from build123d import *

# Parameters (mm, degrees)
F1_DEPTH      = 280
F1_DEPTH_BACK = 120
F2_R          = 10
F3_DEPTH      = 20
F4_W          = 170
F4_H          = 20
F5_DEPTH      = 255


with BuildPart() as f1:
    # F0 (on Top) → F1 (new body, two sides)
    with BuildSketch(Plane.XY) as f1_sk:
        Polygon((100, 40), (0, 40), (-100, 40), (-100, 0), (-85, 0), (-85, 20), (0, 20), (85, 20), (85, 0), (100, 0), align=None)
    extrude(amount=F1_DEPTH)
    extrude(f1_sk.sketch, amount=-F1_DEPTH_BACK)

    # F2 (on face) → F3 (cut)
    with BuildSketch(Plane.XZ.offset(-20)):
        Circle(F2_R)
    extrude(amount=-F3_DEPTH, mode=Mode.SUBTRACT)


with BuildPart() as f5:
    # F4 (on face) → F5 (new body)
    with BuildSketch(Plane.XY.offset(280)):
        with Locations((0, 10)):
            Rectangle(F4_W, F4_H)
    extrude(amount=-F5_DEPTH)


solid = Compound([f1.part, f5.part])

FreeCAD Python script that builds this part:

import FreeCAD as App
import Part
import Sketcher

doc = App.newDocument("Part")
params = doc.addObject("Spreadsheet::Sheet", "Params")
for row, (alias, value) in enumerate([
    ("sketch1_width", "200 mm"),
    ("sketch1_width2", "15 mm"),
    ("sketch1_height", "40 mm"),
    ("sketch1_height2", "20 mm"),
    ("pad1_length", "280 mm"),
    ("pad1_length2", "120 mm"),
    ("sketch2_diameter", "20 mm"),
    ("pocket1_length", "20 mm"),
    ("sketch3_width", "170 mm"),
    ("sketch3_height", "20 mm"),
    ("pad2_length", "255 mm"),
], start=1):
    params.set(f"A{row}", alias)
    params.set(f"B{row}", "=" + value)
    params.setAlias(f"B{row}", alias)

body = doc.addObject("PartDesign::Body", "Body")

# Sketch on XY plane
sketch1 = body.newObject("Sketcher::SketchObject", "Sketch")
sketch1.AttachmentSupport = (doc.getObject("XY_Plane"), [""])
sketch1.MapMode = "FlatFace"
sketch1.addGeometry(Part.LineSegment(App.Vector(100, 40, 0), App.Vector(-100, 40, 0)), False)
sketch1.addGeometry(Part.LineSegment(App.Vector(-100, 40, 0), App.Vector(-100, 0, 0)), False)
sketch1.addGeometry(Part.LineSegment(App.Vector(-100, 0, 0), App.Vector(-85, 0, 0)), False)
sketch1.addGeometry(Part.LineSegment(App.Vector(-85, 0, 0), App.Vector(-85, 20, 0)), False)
sketch1.addGeometry(Part.LineSegment(App.Vector(-85, 20, 0), App.Vector(85, 20, 0)), False)
sketch1.addGeometry(Part.LineSegment(App.Vector(85, 20, 0), App.Vector(85, 0, 0)), False)
sketch1.addGeometry(Part.LineSegment(App.Vector(85, 0, 0), App.Vector(100, 0, 0)), False)
sketch1.addGeometry(Part.LineSegment(App.Vector(100, 0, 0), App.Vector(100, 40, 0)), False)
sketch1.addConstraint(Sketcher.Constraint("Coincident", 0, 2, 1, 1))
sketch1.addConstraint(Sketcher.Constraint("Coincident", 1, 2, 2, 1))
sketch1.addConstraint(Sketcher.Constraint("Coincident", 2, 2, 3, 1))
sketch1.addConstraint(Sketcher.Constraint("Coincident", 3, 2, 4, 1))
sketch1.addConstraint(Sketcher.Constraint("Coincident", 4, 2, 5, 1))
sketch1.addConstraint(Sketcher.Constraint("Coincident", 5, 2, 6, 1))
sketch1.addConstraint(Sketcher.Constraint("Coincident", 6, 2, 7, 1))
sketch1.addConstraint(Sketcher.Constraint("Coincident", 7, 2, 0, 1))
sketch1.addConstraint(Sketcher.Constraint("Horizontal", 0))
sketch1.addConstraint(Sketcher.Constraint("Vertical", 1))
sketch1.addConstraint(Sketcher.Constraint("Horizontal", 2))
sketch1.addConstraint(Sketcher.Constraint("Vertical", 3))
sketch1.addConstraint(Sketcher.Constraint("Horizontal", 4))
sketch1.addConstraint(Sketcher.Constraint("Vertical", 5))
sketch1.addConstraint(Sketcher.Constraint("Horizontal", 6))
sketch1.addConstraint(Sketcher.Constraint("Vertical", 7))
sketch1.addConstraint(Sketcher.Constraint("Symmetric", 2, 2, 5, 2, -1, 1))
sketch1.addConstraint(Sketcher.Constraint("Symmetric", 1, 2, 6, 2, -2))
sketch1.addConstraint(Sketcher.Constraint("DistanceX", 0, 2, 0, 1, 200.0))
sketch1.addConstraint(Sketcher.Constraint("DistanceX", 2, 1, 2, 2, 15.0))
sketch1.addConstraint(Sketcher.Constraint("DistanceY", 1, 2, 1, 1, 40.0))
sketch1.addConstraint(Sketcher.Constraint("DistanceY", 3, 1, 3, 2, 20.0))
sketch1.setExpression("Constraints[18]", "Params.sketch1_width")
sketch1.setExpression("Constraints[19]", "Params.sketch1_width2")
sketch1.setExpression("Constraints[20]", "Params.sketch1_height")
sketch1.setExpression("Constraints[21]", "Params.sketch1_height2")
pad1 = body.newObject("PartDesign::Pad", "Pad")
pad1.Profile = sketch1
pad1.Type = "TwoLengths"
pad1.setExpression("Length", "Params.pad1_length")
pad1.setExpression("Length2", "Params.pad1_length2")

# Sketch on XZ plane
sketch2 = body.newObject("Sketcher::SketchObject", "Sketch001")
sketch2.AttachmentSupport = (doc.getObject("XZ_Plane"), [""])
sketch2.MapMode = "FlatFace"
sketch2.AttachmentOffset = App.Placement(App.Vector(0, 0, -20), App.Rotation())
sketch2.addGeometry(Part.Circle(App.Vector(0, 0, 0), App.Vector(0, 0, 1), 10), False)
sketch2.addConstraint(Sketcher.Constraint("Coincident", 0, 3, -1, 1))
sketch2.addConstraint(Sketcher.Constraint("Diameter", 0, 20.0))
sketch2.setExpression("Constraints[1]", "Params.sketch2_diameter")
pocket1 = body.newObject("PartDesign::Pocket", "Pocket")
pocket1.Profile = sketch2
pocket1.setExpression("Length", "Params.pocket1_length")
body2 = doc.addObject("PartDesign::Body", "Body001")

# Sketch on XY plane
sketch3 = body2.newObject("Sketcher::SketchObject", "Sketch002")
sketch3.AttachmentSupport = (doc.getObject("XY_Plane001"), [""])
sketch3.MapMode = "FlatFace"
sketch3.AttachmentOffset = App.Placement(App.Vector(0, 0, 280), App.Rotation())
sketch3.addGeometry(Part.LineSegment(App.Vector(-85, 20, 0), App.Vector(-85, 0, 0)), False)
sketch3.addGeometry(Part.LineSegment(App.Vector(-85, 0, 0), App.Vector(85, 0, 0)), False)
sketch3.addGeometry(Part.LineSegment(App.Vector(85, 0, 0), App.Vector(85, 20, 0)), False)
sketch3.addGeometry(Part.LineSegment(App.Vector(85, 20, 0), App.Vector(-85, 20, 0)), False)
sketch3.addConstraint(Sketcher.Constraint("Coincident", 0, 2, 1, 1))
sketch3.addConstraint(Sketcher.Constraint("Coincident", 1, 2, 2, 1))
sketch3.addConstraint(Sketcher.Constraint("Coincident", 2, 2, 3, 1))
sketch3.addConstraint(Sketcher.Constraint("Coincident", 3, 2, 0, 1))
sketch3.addConstraint(Sketcher.Constraint("Vertical", 0))
sketch3.addConstraint(Sketcher.Constraint("Horizontal", 1))
sketch3.addConstraint(Sketcher.Constraint("Vertical", 2))
sketch3.addConstraint(Sketcher.Constraint("Horizontal", 3))
sketch3.addConstraint(Sketcher.Constraint("Symmetric", 0, 2, 1, 2, -1, 1))
sketch3.addConstraint(Sketcher.Constraint("DistanceX", 1, 1, 1, 2, 170.0))
sketch3.addConstraint(Sketcher.Constraint("DistanceY", 0, 2, 0, 1, 20.0))
sketch3.setExpression("Constraints[9]", "Params.sketch3_width")
sketch3.setExpression("Constraints[10]", "Params.sketch3_height")
pad2 = body2.newObject("PartDesign::Pad", "Pad001")
pad2.Profile = sketch3
pad2.setExpression("Length", "Params.pad2_length")
pad2.Reversed = True

doc.recompute()
